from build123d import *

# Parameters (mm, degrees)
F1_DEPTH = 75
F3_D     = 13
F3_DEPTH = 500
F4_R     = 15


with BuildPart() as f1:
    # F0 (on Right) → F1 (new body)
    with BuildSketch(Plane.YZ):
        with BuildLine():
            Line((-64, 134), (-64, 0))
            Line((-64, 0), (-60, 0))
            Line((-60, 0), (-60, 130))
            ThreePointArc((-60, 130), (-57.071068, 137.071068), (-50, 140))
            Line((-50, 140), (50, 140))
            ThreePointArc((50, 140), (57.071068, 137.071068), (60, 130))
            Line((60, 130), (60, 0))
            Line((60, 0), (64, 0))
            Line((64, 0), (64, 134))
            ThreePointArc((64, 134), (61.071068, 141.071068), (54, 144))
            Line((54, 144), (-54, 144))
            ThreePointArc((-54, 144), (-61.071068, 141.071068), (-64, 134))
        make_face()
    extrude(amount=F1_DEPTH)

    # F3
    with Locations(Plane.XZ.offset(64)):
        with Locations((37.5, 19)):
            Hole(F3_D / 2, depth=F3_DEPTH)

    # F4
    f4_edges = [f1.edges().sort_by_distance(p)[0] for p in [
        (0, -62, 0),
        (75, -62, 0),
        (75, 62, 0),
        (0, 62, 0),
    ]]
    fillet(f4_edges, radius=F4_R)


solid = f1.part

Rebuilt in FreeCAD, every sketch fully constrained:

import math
import FreeCAD as App
import Part
import Sketcher
Q = App.Units.Quantity


def edges_at(feature, points):
    """Names of the edges that pass closest to the given points."""
    edges = feature.Shape.Edges
    near = lambda p: min(range(len(edges)), key=lambda i: edges[i].distToShape(Part.Vertex(*p))[0])
    return sorted({f"Edge{near(p) + 1}" for p in points})

doc = App.newDocument("Part")
body = doc.addObject("PartDesign::Body", "Body")

# Sketch on YZ plane
sketch1 = body.newObject("Sketcher::SketchObject", "Sketch")
sketch1.AttachmentSupport = (doc.getObject("YZ_Plane"), [""])
sketch1.MapMode = "FlatFace"
sketch1.addGeometry(Part.LineSegment(App.Vector(-64, 134, 0), App.Vector(-64, 0, 0)), False)
sketch1.addGeometry(Part.LineSegment(App.Vector(-64, 0, 0), App.Vector(-60, 0, 0)), False)
sketch1.addGeometry(Part.LineSegment(App.Vector(-60, 0, 0), App.Vector(-60, 130, 0)), False)
sketch1.addGeometry(Part.ArcOfCircle(Part.Circle(App.Vector(-50, 130, 0), App.Vector(0, 0, 1), 10), math.radians(90), math.radians(180)), False)
sketch1.addGeometry(Part.LineSegment(App.Vector(-50, 140, 0), App.Vector(50, 140, 0)), False)
sketch1.addGeometry(Part.ArcOfCircle(Part.Circle(App.Vector(50, 130, 0), App.Vector(0, 0, 1), 10), math.radians(0), math.radians(90)), False)
sketch1.addGeometry(Part.LineSegment(App.Vector(60, 130, 0), App.Vector(60, 0, 0)), False)
sketch1.addGeometry(Part.LineSegment(App.Vector(60, 0, 0), App.Vector(64, 0, 0)), False)
sketch1.addGeometry(Part.LineSegment(App.Vector(64, 0, 0), App.Vector(64, 134, 0)), False)
sketch1.addGeometry(Part.ArcOfCircle(Part.Circle(App.Vector(54, 134, 0), App.Vector(0, 0, 1), 10), math.radians(0), math.radians(90)), False)
sketch1.addGeometry(Part.LineSegment(App.Vector(54, 144, 0), App.Vector(-54, 144, 0)), False)
sketch1.addGeometry(Part.ArcOfCircle(Part.Circle(App.Vector(-54, 134, 0), App.Vector(0, 0, 1), 10), math.radians(90), math.radians(180)), False)
sketch1.addConstraint(Sketcher.Constraint("Coincident", 0, 2, 1, 1))
sketch1.addConstraint(Sketcher.Constraint("Coincident", 1, 2, 2, 1))
sketch1.addConstraint(Sketcher.Constraint("Tangent", 2, 2, 3, 2))
sketch1.addConstraint(Sketcher.Constraint("Tangent", 3, 1, 4, 1))
sketch1.addConstraint(Sketcher.Constraint("Tangent", 4, 2, 5, 2))
sketch1.addConstraint(Sketcher.Constraint("Tangent", 5, 1, 6, 1))
sketch1.addConstraint(Sketcher.Constraint("Coincident", 6, 2, 7, 1))
sketch1.addConstraint(Sketcher.Constraint("Coincident", 7, 2, 8, 1))
sketch1.addConstraint(Sketcher.Constraint("Tangent", 8, 2, 9, 1))
sketch1.addConstraint(Sketcher.Constraint("Tangent", 9, 2, 10, 1))
sketch1.addConstraint(Sketcher.Constraint("Tangent", 10, 2, 11, 1))
sketch1.addConstraint(Sketcher.Constraint("Tangent", 11, 2, 0, 1))
sketch1.addConstraint(Sketcher.Constraint("Vertical", 0))
sketch1.addConstraint(Sketcher.Constraint("Horizontal", 1))
sketch1.addConstraint(Sketcher.Constraint("Vertical", 2))
sketch1.addConstraint(Sketcher.Constraint("Horizontal", 4))
sketch1.addConstraint(Sketcher.Constraint("Vertical", 6))
sketch1.addConstraint(Sketcher.Constraint("Horizontal", 7))
sketch1.addConstraint(Sketcher.Constraint("Vertical", 8))
sketch1.addConstraint(Sketcher.Constraint("Horizontal", 10))
sketch1.addConstraint(Sketcher.Constraint("Equal", 3, 5))
sketch1.addConstraint(Sketcher.Constraint("Equal", 5, 9))
sketch1.addConstraint(Sketcher.Constraint("Equal", 9, 11))
sketch1.addConstraint(Sketcher.Constraint("Symmetric", 1, 2, 6, 2, -1, 1))
sketch1.addConstraint(Sketcher.Constraint("Symmetric", 0, 2, 7, 2, -2))
sketch1.addConstraint(Sketcher.Constraint("Radius", 3, Q("9.999999 mm")))
sketch1.addConstraint(Sketcher.Constraint("DistanceX", 1, 1, 1, 2, Q("4 mm")))
sketch1.addConstraint(Sketcher.Constraint("DistanceX", 4, 1, 4, 2, Q("100 mm")))
sketch1.addConstraint(Sketcher.Constraint("DistanceY", 0, 2, 0, 1, Q("134 mm")))
sketch1.addConstraint(Sketcher.Constraint("DistanceY", 2, 1, 2, 2, Q("130 mm")))
pad1 = body.newObject("PartDesign::Pad", "Pad")
pad1.Profile = sketch1
pad1.Length = 75

# Sketch on XZ plane
sketch2 = body.newObject("Sketcher::SketchObject", "Sketch001")
sketch2.AttachmentSupport = (doc.getObject("XZ_Plane"), [""])
sketch2.MapMode = "FlatFace"
sketch2.AttachmentOffset = App.Placement(App.Vector(0, 0, 64), App.Rotation())
sketch2.addGeometry(Part.Circle(App.Vector(38, 19, 0), App.Vector(0, 0, 1), 6), False)
sketch2.addConstraint(Sketcher.Constraint("Diameter", 0, Q("13 mm")))
sketch2.addConstraint(Sketcher.Constraint("DistanceY", -1, 1, 0, 3, Q("19 mm")))
sketch2.addConstraint(Sketcher.Constraint("DistanceX", -1, 1, 0, 3, Q("37.5 mm")))
doc.recompute()
hole = body.newObject("PartDesign::Hole", "Hole")
hole.Profile = sketch2
hole.ThreadType = "None"
hole.Diameter = 13
hole.DepthType = "Dimension"
hole.Depth = 500
hole.DrillPoint = "Flat"
doc.recompute()

fillet = body.newObject("PartDesign::Fillet", "Fillet")
fillet.Base = (hole, edges_at(hole, [
    (0, -62, 0),
    (75, -62, 0),
    (75, 62, 0),
    (0, 62, 0),
]))
fillet.Radius = 15

doc.recompute()
